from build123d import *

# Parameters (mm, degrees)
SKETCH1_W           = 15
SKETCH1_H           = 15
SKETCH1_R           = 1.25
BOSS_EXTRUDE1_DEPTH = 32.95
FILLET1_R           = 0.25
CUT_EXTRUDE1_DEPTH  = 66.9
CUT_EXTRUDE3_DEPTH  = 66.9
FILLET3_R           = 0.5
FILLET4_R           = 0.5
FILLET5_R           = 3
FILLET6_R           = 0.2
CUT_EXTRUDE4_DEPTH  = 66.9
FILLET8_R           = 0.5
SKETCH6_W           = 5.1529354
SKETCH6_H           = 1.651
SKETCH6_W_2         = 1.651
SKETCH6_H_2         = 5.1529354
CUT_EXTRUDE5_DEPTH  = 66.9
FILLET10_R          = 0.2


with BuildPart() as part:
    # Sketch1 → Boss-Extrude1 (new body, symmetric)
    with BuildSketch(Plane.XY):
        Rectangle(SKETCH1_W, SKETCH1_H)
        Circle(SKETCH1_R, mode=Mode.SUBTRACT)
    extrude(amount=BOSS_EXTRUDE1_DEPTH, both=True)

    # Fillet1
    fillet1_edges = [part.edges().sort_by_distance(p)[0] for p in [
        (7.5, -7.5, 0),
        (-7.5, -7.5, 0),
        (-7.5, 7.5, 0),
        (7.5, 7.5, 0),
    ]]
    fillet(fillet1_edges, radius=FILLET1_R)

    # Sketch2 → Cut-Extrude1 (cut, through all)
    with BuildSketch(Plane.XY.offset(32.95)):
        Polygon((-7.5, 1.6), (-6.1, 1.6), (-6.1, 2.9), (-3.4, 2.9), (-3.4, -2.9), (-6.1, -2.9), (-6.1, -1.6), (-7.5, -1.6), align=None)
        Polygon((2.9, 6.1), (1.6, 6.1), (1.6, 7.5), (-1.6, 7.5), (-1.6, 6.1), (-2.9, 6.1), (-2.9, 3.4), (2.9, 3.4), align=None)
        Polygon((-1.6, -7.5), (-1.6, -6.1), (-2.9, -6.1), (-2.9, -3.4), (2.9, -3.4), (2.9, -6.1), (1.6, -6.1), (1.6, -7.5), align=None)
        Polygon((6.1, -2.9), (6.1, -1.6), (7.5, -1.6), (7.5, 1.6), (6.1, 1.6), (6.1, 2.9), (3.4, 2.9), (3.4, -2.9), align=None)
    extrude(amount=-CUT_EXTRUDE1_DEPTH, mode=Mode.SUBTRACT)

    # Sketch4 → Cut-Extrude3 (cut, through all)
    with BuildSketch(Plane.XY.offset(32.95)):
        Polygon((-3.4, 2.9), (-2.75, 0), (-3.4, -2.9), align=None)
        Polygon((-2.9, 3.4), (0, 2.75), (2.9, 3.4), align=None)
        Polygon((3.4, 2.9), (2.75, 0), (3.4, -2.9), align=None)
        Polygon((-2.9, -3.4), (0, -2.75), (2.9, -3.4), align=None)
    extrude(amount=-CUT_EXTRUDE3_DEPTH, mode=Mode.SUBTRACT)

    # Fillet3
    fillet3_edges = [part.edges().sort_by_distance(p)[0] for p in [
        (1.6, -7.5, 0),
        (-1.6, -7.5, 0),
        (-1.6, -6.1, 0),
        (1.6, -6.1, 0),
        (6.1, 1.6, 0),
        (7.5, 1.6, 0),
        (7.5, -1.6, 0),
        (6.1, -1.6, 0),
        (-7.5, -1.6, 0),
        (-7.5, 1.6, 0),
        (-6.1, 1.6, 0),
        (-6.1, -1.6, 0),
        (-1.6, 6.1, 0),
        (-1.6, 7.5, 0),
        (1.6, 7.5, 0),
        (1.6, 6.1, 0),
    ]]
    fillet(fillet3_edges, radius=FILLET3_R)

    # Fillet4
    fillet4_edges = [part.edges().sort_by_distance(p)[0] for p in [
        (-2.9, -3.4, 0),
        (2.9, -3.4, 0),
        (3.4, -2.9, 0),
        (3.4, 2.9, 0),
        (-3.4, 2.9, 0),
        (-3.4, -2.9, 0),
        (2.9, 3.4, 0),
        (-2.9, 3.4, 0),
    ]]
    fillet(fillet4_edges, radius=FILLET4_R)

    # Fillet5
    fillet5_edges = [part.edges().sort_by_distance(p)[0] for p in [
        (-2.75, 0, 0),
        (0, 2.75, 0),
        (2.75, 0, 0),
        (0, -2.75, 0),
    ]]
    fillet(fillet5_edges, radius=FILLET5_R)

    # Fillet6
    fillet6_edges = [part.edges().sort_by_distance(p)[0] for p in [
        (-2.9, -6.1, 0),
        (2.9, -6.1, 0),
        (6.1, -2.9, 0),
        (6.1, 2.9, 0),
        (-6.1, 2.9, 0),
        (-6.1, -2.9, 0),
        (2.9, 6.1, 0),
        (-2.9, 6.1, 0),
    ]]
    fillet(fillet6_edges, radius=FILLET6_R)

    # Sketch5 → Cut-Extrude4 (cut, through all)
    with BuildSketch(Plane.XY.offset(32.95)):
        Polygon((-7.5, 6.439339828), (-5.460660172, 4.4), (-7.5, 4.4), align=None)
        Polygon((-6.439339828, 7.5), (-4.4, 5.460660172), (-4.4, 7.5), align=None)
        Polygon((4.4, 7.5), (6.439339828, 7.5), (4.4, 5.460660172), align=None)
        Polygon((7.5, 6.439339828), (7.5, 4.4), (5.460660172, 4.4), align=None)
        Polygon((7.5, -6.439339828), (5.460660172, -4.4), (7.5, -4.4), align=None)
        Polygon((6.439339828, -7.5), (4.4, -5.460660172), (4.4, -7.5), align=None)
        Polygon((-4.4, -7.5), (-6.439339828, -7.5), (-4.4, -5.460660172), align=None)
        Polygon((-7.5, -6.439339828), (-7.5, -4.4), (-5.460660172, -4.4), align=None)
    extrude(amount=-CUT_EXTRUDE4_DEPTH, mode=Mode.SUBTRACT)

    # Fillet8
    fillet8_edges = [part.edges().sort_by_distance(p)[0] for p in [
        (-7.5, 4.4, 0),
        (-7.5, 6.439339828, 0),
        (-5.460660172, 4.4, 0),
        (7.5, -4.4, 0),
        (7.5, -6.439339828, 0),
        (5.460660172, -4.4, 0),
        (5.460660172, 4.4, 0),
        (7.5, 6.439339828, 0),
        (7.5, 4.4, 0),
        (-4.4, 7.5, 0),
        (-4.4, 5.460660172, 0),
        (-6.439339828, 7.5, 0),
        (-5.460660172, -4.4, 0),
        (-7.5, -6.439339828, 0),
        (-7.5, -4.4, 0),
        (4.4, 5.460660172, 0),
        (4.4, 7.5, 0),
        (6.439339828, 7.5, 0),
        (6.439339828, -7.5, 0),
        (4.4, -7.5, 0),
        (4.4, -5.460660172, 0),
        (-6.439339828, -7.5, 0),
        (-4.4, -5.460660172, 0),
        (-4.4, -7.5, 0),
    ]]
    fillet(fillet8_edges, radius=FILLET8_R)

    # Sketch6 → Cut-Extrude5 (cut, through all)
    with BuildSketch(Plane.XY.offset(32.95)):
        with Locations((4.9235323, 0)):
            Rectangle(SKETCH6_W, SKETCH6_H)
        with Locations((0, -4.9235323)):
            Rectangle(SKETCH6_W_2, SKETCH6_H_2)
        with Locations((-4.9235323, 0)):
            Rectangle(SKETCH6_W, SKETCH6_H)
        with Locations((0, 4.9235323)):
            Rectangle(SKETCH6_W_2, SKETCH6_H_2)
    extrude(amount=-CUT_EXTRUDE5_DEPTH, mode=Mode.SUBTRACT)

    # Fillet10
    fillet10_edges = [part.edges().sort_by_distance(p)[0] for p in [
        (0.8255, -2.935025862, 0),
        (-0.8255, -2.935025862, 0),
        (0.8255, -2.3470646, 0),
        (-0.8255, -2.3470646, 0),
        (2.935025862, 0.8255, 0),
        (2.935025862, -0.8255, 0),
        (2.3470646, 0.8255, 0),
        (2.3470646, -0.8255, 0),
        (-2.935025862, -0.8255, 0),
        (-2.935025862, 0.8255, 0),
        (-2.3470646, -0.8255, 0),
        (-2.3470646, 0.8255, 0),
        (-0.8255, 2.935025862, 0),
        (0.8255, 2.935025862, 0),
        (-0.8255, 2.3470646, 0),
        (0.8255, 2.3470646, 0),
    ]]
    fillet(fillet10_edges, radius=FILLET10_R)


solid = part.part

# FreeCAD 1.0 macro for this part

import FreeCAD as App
import Part
import Sketcher


def edges_at(feature, points):
    """Names of the edges that pass closest to the given points."""
    edges = feature.Shape.Edges
    near = lambda p: min(range(len(edges)), key=lambda i: edges[i].distToShape(Part.Vertex(*p))[0])
    return sorted({f"Edge{near(p) + 1}" for p in points})


def add_polygon(sketch, points):
    """Adds a closed chain of lines whose ends are joined by coincident constraints."""
    first, n = sketch.GeometryCount, len(points)
    for a, b in zip(points, points[1:] + points[:1]):
        sketch.addGeometry(Part.LineSegment(App.Vector(*a, 0), App.Vector(*b, 0)), False)
    for i in range(n):
        sketch.addConstraint(Sketcher.Constraint("Coincident", first + i, 2, first + (i + 1) % n, 1))

doc = App.newDocument("Part")
body = doc.addObject("PartDesign::Body", "Body")

# Sketch on XY plane
sketch1 = body.newObject("Sketcher::SketchObject", "Sketch")
sketch1.AttachmentSupport = (doc.getObject("XY_Plane"), [""])
sketch1.MapMode = "FlatFace"
add_polygon(sketch1, [(-7.5, 7.5), (-7.5, -7.5), (7.5, -7.5), (7.5, 7.5)])  # lines 0-3
sketch1.addGeometry(Part.Circle(App.Vector(0, 0, 0), App.Vector(0, 0, 1), 1.2), False)  # 4
sketch1.addConstraint(Sketcher.Constraint("Vertical", 0))
sketch1.addConstraint(Sketcher.Constraint("Horizontal", 1))
sketch1.addConstraint(Sketcher.Constraint("Vertical", 2))
sketch1.addConstraint(Sketcher.Constraint("Horizontal", 3))
sketch1.addConstraint(Sketcher.Constraint("Coincident", 4, 3, -1, 1))
sketch1.addConstraint(Sketcher.Constraint("Symmetric", 0, 2, 2, 2, -1, 1))
sketch1.addConstraint(Sketcher.Constraint("Equal", 3, 0))
sketch1.addConstraint(Sketcher.Constraint("Diameter", 4, 2.5))
sketch1.addConstraint(Sketcher.Constraint("DistanceX", 1, 1, 1, 2, 15.0))
pad1 = body.newObject("PartDesign::Pad", "Pad")
pad1.Profile = sketch1
pad1.Length = 65.9
pad1.Midplane = True
doc.recompute()

fillet = body.newObject("PartDesign::Fillet", "Fillet")
fillet.Base = (pad1, edges_at(pad1, [
    (7.5, -7.5, 0),
    (-7.5, -7.5, 0),
    (-7.5, 7.5, 0),
    (7.5, 7.5, 0),
]))
fillet.Radius = 0.25

# Sketch on XY plane
sketch2 = body.newObject("Sketcher::SketchObject", "Sketch001")
sketch2.AttachmentSupport = (doc.getObject("XY_Plane"), [""])
sketch2.MapMode = "FlatFace"
sketch2.AttachmentOffset = App.Placement(App.Vector(0, 0, 32.95), App.Rotation())
add_polygon(sketch2, [(-6.1, 1.6), (-7.5, 1.6), (-7.5, -1.6), (-6.1, -1.6), (-6.1, -2.9), (-3.4, -2.9), (-3.4, 2.9), (-6.1, 2.9)])  # lines 0-7
add_polygon(sketch2, [(2.9, 6.1), (1.6, 6.1), (1.6, 7.5), (-1.6, 7.5), (-1.6, 6.1), (-2.9, 6.1), (-2.9, 3.4), (2.9, 3.4)])  # lines 8-15
add_polygon(sketch2, [(-1.6, -6.1), (-1.6, -7.5), (1.6, -7.5), (1.6, -6.1), (2.9, -6.1), (2.9, -3.4), (-2.9, -3.4), (-2.9, -6.1)])  # lines 16-23
add_polygon(sketch2, [(6.1, -2.9), (6.1, -1.6), (7.5, -1.6), (7.5, 1.6), (6.1, 1.6), (6.1, 2.9), (3.4, 2.9), (3.4, -2.9)])  # lines 24-31
sketch2.addConstraint(Sketcher.Constraint("Horizontal", 0))
sketch2.addConstraint(Sketcher.Constraint("Vertical", 1))
sketch2.addConstraint(Sketcher.Constraint("Horizontal", 2))
sketch2.addConstraint(Sketcher.Constraint("Vertical", 3))
sketch2.addConstraint(Sketcher.Constraint("Horizontal", 4))
sketch2.addConstraint(Sketcher.Constraint("Vertical", 5))
sketch2.addConstraint(Sketcher.Constraint("Horizontal", 6))
sketch2.addConstraint(Sketcher.Constraint("Vertical", 7))
sketch2.addConstraint(Sketcher.Constraint("Horizontal", 8))
sketch2.addConstraint(Sketcher.Constraint("Vertical", 9))
sketch2.addConstraint(Sketcher.Constraint("Horizontal", 10))
sketch2.addConstraint(Sketcher.Constraint("Vertical", 11))
sketch2.addConstraint(Sketcher.Constraint("Horizontal", 12))
sketch2.addConstraint(Sketcher.Constraint("Vertical", 13))
sketch2.addConstraint(Sketcher.Constraint("Horizontal", 14))
sketch2.addConstraint(Sketcher.Constraint("Vertical", 15))
sketch2.addConstraint(Sketcher.Constraint("Vertical", 16))
sketch2.addConstraint(Sketcher.Constraint("Horizontal", 17))
sketch2.addConstraint(Sketcher.Constraint("Vertical", 18))
sketch2.addConstraint(Sketcher.Constraint("Horizontal", 19))
sketch2.addConstraint(Sketcher.Constraint("Vertical", 20))
sketch2.addConstraint(Sketcher.Constraint("Horizontal", 21))
sketch2.addConstraint(Sketcher.Constraint("Vertical", 22))
sketch2.addConstraint(Sketcher.Constraint("Horizontal", 23))
sketch2.addConstraint(Sketcher.Constraint("Vertical", 24))
sketch2.addConstraint(Sketcher.Constraint("Horizontal", 25))
sketch2.addConstraint(Sketcher.Constraint("Vertical", 26))
sketch2.addConstraint(Sketcher.Constraint("Horizontal", 27))
sketch2.addConstraint(Sketcher.Constraint("Vertical", 28))
sketch2.addConstraint(Sketcher.Constraint("Horizontal", 29))
sketch2.addConstraint(Sketcher.Constraint("Vertical", 30))
sketch2.addConstraint(Sketcher.Constraint("Horizontal", 31))
sketch2.addConstraint(Sketcher.Constraint("Symmetric", 9, 2, 16, 2, -1, 1))
sketch2.addConstraint(Sketcher.Constraint("Symmetric", 11, 2, 18, 2, -1, 1))
sketch2.addConstraint(Sketcher.Constraint("Symmetric", 13, 2, 20, 2, -1, 1))
sketch2.addConstraint(Sketcher.Constraint("Symmetric", 15, 2, 22, 2, -1, 1))
sketch2.addConstraint(Sketcher.Constraint("Symmetric", 7, 2, 24, 2, -1, 1))
sketch2.addConstraint(Sketcher.Constraint("Symmetric", 1, 2, 26, 2, -1, 1))
sketch2.addConstraint(Sketcher.Constraint("Symmetric", 3, 2, 28, 2, -1, 1))
sketch2.addConstraint(Sketcher.Constraint("Symmetric", 5, 2, 30, 2, -1, 1))
sketch2.addConstraint(Sketcher.Constraint("Symmetric", 8, 2, 11, 2, -2))
sketch2.addConstraint(Sketcher.Constraint("Symmetric", 2, 2, 24, 2, -2))
sketch2.addConstraint(Sketcher.Constraint("Horizontal", 6, 2, 28, 2))
sketch2.addConstraint(Sketcher.Constraint("Vertical", 15, 2, 19, 2))
sketch2.addConstraint(Sketcher.Constraint("Equal", 17, 1))
sketch2.addConstraint(Sketcher.Constraint("Equal", 23, 3))
sketch2.addConstraint(Sketcher.Constraint("Equal", 27, 9))
sketch2.addConstraint(Sketcher.Constraint("Equal", 31, 13))
sketch2.addConstraint(Sketcher.Constraint("DistanceX", 0, 2, 0, 1, 1.4))
sketch2.addConstraint(Sketcher.Constraint("DistanceX", 4, 1, 4, 2, 2.7))
sketch2.addConstraint(Sketcher.Constraint("DistanceX", 8, 2, 8, 1, 1.3))
sketch2.addConstraint(Sketcher.Constraint("DistanceX", 10, 2, 10, 1, 3.2))
sketch2.addConstraint(Sketcher.Constraint("DistanceX", 5, 2, 8, 2, 5.0))
sketch2.addConstraint(Sketcher.Constraint("DistanceY", 4, 2, 8, 2, 9.0))
pocket1 = body.newObject("PartDesign::Pocket", "Pocket")
pocket1.Profile = sketch2
pocket1.Type = "ThroughAll"

# Sketch on XY plane
sketch3 = body.newObject("Sketcher::SketchObject", "Sketch002")
sketch3.AttachmentSupport = (doc.getObject("XY_Plane"), [""])
sketch3.MapMode = "FlatFace"
sketch3.AttachmentOffset = App.Placement(App.Vector(0, 0, 32.95), App.Rotation())
add_polygon(sketch3, [(-2.8, 0), (-3.4, 2.9), (-3.4, -2.9)])  # lines 0-2
add_polygon(sketch3, [(-2.9, 3.4), (0, 2.8), (2.9, 3.4)])  # lines 3-5
add_polygon(sketch3, [(3.4, 2.9), (2.8, 0), (3.4, -2.9)])  # lines 6-8
add_polygon(sketch3, [(0, -2.8), (-2.9, -3.4), (2.9, -3.4)])  # lines 9-11
sketch3.addConstraint(Sketcher.Constraint("Vertical", 1))
sketch3.addConstraint(Sketcher.Constraint("Horizontal", 5))
sketch3.addConstraint(Sketcher.Constraint("Vertical", 8))
sketch3.addConstraint(Sketcher.Constraint("Horizontal", 10))
sketch3.addConstraint(Sketcher.Constraint("Symmetric", 2, 2, 6, 2, -1, 1))
sketch3.addConstraint(Sketcher.Constraint("Symmetric", 0, 2, 7, 2, -1, 1))
sketch3.addConstraint(Sketcher.Constraint("Symmetric", 4, 2, 9, 2, -1, 1))
sketch3.addConstraint(Sketcher.Constraint("Symmetric", 3, 2, 11, 2, -1, 1))
sketch3.addConstraint(Sketcher.Constraint("PointOnObject", 2, 2, -1))
sketch3.addConstraint(Sketcher.Constraint("PointOnObject", 3, 2, -2))
sketch3.addConstraint(Sketcher.Constraint("Perpendicular", 2, 3))
sketch3.addConstraint(Sketcher.Constraint("Perpendicular", 0, 4))
sketch3.addConstraint(Sketcher.Constraint("Perpendicular", 3, 6))
sketch3.addConstraint(Sketcher.Constraint("Perpendicular", 6, 11))
sketch3.addConstraint(Sketcher.Constraint("Horizontal", 1, 2, 7, 2))
sketch3.addConstraint(Sketcher.Constraint("Equal", 10, 1))
sketch3.addConstraint(Sketcher.Constraint("DistanceX", 5, 2, 5, 1, 5.8))
sketch3.addConstraint(Sketcher.Constraint("DistanceX", 0, 2, -1, 1, 3.4))
sketch3.addConstraint(Sketcher.Constraint("DistanceY", -1, 1, 4, 2, 3.4))
sketch3.addConstraint(Sketcher.Constraint("DistanceX", 2, 2, 6, 2, 5.5))
pocket2 = body.newObject("PartDesign::Pocket", "Pocket001")
pocket2.Profile = sketch3
pocket2.Type = "ThroughAll"
doc.recompute()

fillet2 = body.newObject("PartDesign::Fillet", "Fillet001")
fillet2.Base = (pocket2, edges_at(pocket2, [
    (1.6, -7.5, 0),
    (-1.6, -7.5, 0),
    (-1.6, -6.1, 0),
    (1.6, -6.1, 0),
    (6.1, 1.6, 0),
    (7.5, 1.6, 0),
    (7.5, -1.6, 0),
    (6.1, -1.6, 0),
    (-7.5, -1.6, 0),
    (-7.5, 1.6, 0),
    (-6.1, 1.6, 0),
    (-6.1, -1.6, 0),
    (-1.6, 6.1, 0),
    (-1.6, 7.5, 0),
    (1.6, 7.5, 0),
    (1.6, 6.1, 0),
]))
fillet2.Radius = 0.5
doc.recompute()

fillet3 = body.newObject("PartDesign::Fillet", "Fillet002")
fillet3.Base = (fillet2, edges_at(fillet2, [
    (-2.9, -3.4, 0),
    (2.9, -3.4, 0),
    (3.4, -2.9, 0),
    (3.4, 2.9, 0),
    (-3.4, 2.9, 0),
    (-3.4, -2.9, 0),
    (2.9, 3.4, 0),
    (-2.9, 3.4, 0),
]))
fillet3.Radius = 0.5
doc.recompute()

fillet4 = body.newObject("PartDesign::Fillet", "Fillet003")
fillet4.Base = (fillet3, edges_at(fillet3, [
    (-2.75, 0, 0),
    (0, 2.75, 0),
    (2.75, 0, 0),
    (0, -2.75, 0),
]))
fillet4.Radius = 3
doc.recompute()

fillet5 = body.newObject("PartDesign::Fillet", "Fillet004")
fillet5.Base = (fillet4, edges_at(fillet4, [
    (-2.9, -6.1, 0),
    (2.9, -6.1, 0),
    (6.1, -2.9, 0),
    (6.1, 2.9, 0),
    (-6.1, 2.9, 0),
    (-6.1, -2.9, 0),
    (2.9, 6.1, 0),
    (-2.9, 6.1, 0),
]))
fillet5.Radius = 0.2

# Sketch on XY plane
sketch4 = body.newObject("Sketcher::SketchObject", "Sketch003")
sketch4.AttachmentSupport = (doc.getObject("XY_Plane"), [""])
sketch4.MapMode = "FlatFace"
sketch4.AttachmentOffset = App.Placement(App.Vector(0, 0, 32.95), App.Rotation())
add_polygon(sketch4, [(-5.5, 4.4), (-7.5, 6.4), (-7.5, 4.4)])  # lines 0-2
add_polygon(sketch4, [(-6.4, 7.5), (-4.4, 5.5), (-4.4, 7.5)])  # lines 3-5
add_polygon(sketch4, [(6.4, 7.5), (4.4, 7.5), (4.4, 5.5)])  # lines 6-8
add_polygon(sketch4, [(7.5, 4.4), (7.5, 6.4), (5.5, 4.4)])  # lines 9-11
add_polygon(sketch4, [(5.5, -4.4), (7.5, -6.4), (7.5, -4.4)])  # lines 12-14
add_polygon(sketch4, [(6.4, -7.5), (4.4, -5.5), (4.4, -7.5)])  # lines 15-17
add_polygon(sketch4, [(-6.4, -7.5), (-4.4, -7.5), (-4.4, -5.5)])  # lines 18-20
add_polygon(sketch4, [(-7.5, -4.4), (-7.5, -6.4), (-5.5, -4.4)])  # lines 21-23
sketch4.addConstraint(Sketcher.Constraint("Vertical", 1))
sketch4.addConstraint(Sketcher.Constraint("Horizontal", 2))
sketch4.addConstraint(Sketcher.Constraint("Vertical", 4))
sketch4.addConstraint(Sketcher.Constraint("Horizontal", 5))
sketch4.addConstraint(Sketcher.Constraint("Horizontal", 6))
sketch4.addConstraint(Sketcher.Constraint("Vertical", 7))
sketch4.addConstraint(Sketcher.Constraint("Vertical", 9))
sketch4.addConstraint(Sketcher.Constraint("Horizontal", 11))
sketch4.addConstraint(Sketcher.Constraint("Vertical", 13))
sketch4.addConstraint(Sketcher.Constraint("Horizontal", 14))
sketch4.addConstraint(Sketcher.Constraint("Vertical", 16))
sketch4.addConstraint(Sketcher.Constraint("Horizontal", 17))
sketch4.addConstraint(Sketcher.Constraint("Horizontal", 18))
sketch4.addConstraint(Sketcher.Constraint("Vertical", 19))
sketch4.addConstraint(Sketcher.Constraint("Vertical", 21))
sketch4.addConstraint(Sketcher.Constraint("Horizontal", 23))
sketch4.addConstraint(Sketcher.Constraint("Symmetric", 0, 2, 12, 2, -1, 1))
sketch4.addConstraint(Sketcher.Constraint("Symmetric", 2, 2, 14, 2, -1, 1))
sketch4.addConstraint(Sketcher.Constraint("Symmetric", 3, 2, 15, 2, -1, 1))
sketch4.addConstraint(Sketcher.Constraint("Symmetric", 5, 2, 17, 2, -1, 1))
sketch4.addConstraint(Sketcher.Constraint("Symmetric", 6, 2, 18, 2, -1, 1))
sketch4.addConstraint(Sketcher.Constraint("Symmetric", 9, 2, 21, 2, -1, 1))
sketch4.addConstraint(Sketcher.Constraint("Symmetric", 10, 2, 22, 2, -1, 1))
sketch4.addConstraint(Sketcher.Constraint("Symmetric", 4, 2, 6, 2, -2))
sketch4.addConstraint(Sketcher.Constraint("Symmetric", 0, 2, 9, 2, -2))
sketch4.addConstraint(Sketcher.Constraint("Symmetric", 2, 2, 10, 2, -2))
sketch4.addConstraint(Sketcher.Constraint("Parallel", 0, 3))
sketch4.addConstraint(Sketcher.Constraint("Perpendicular", 3, 8))
sketch4.addConstraint(Sketcher.Constraint("Parallel", 8, 10))
sketch4.addConstraint(Sketcher.Constraint("Perpendicular", 15, 20))
sketch4.addConstraint(Sketcher.Constraint("Horizontal", 3, 2, 7, 2))
sketch4.addConstraint(Sketcher.Constraint("Horizontal", 15, 2, 19, 2))
sketch4.addConstraint(Sketcher.Constraint("Equal", 2, 5))
sketch4.addConstraint(Sketcher.Constraint("DistanceX", 0, 2, -1, 1, 7.5))
sketch4.addConstraint(Sketcher.Constraint("DistanceY", -1, 1, 1, 2, 4.4))
sketch4.addConstraint(Sketcher.Constraint("DistanceX", 3, 2, -1, 1, 4.4))
sketch4.addConstraint(Sketcher.Constraint("DistanceY", -1, 1, 4, 2, 7.5))
sketch4.addConstraint(Sketcher.Constraint("DistanceX", 2, 1, 2, 2, 2.03934))
pocket3 = body.newObject("PartDesign::Pocket", "Pocket002")
pocket3.Profile = sketch4
pocket3.Type = "ThroughAll"
doc.recompute()

fillet6 = body.newObject("PartDesign::Fillet", "Fillet005")
fillet6.Base = (pocket3, edges_at(pocket3, [
    (-7.5, 4.4, 0),
    (-7.5, 6.439, 0),
    (-5.461, 4.4, 0),
    (7.5, -4.4, 0),
    (7.5, -6.439, 0),
    (5.461, -4.4, 0),
    (5.461, 4.4, 0),
    (7.5, 6.439, 0),
    (7.5, 4.4, 0),
    (-4.4, 7.5, 0),
    (-4.4, 5.461, 0),
    (-6.439, 7.5, 0),
    (-5.461, -4.4, 0),
    (-7.5, -6.439, 0),
    (-7.5, -4.4, 0),
    (4.4, 5.461, 0),
    (4.4, 7.5, 0),
    (6.439, 7.5, 0),
    (6.439, -7.5, 0),
    (4.4, -7.5, 0),
    (4.4, -5.461, 0),
    (-6.439, -7.5, 0),
    (-4.4, -5.461, 0),
    (-4.4, -7.5, 0),
]))
fillet6.Radius = 0.5

# Sketch on XY plane
sketch5 = body.newObject("Sketcher::SketchObject", "Sketch004")
sketch5.AttachmentSupport = (doc.getObject("XY_Plane"), [""])
sketch5.MapMode = "FlatFace"
sketch5.AttachmentOffset = App.Placement(App.Vector(0, 0, 32.95), App.Rotation())
add_polygon(sketch5, [(2.3, 0.8), (2.3, -0.8), (7.5, -0.8), (7.5, 0.8)])  # lines 0-3
add_polygon(sketch5, [(-0.8, -2.3), (-0.8, -7.5), (0.8, -7.5), (0.8, -2.3)])  # lines 4-7
add_polygon(sketch5, [(-7.5, 0.8), (-7.5, -0.8), (-2.3, -0.8), (-2.3, 0.8)])  # lines 8-11
add_polygon(sketch5, [(-0.8, 7.5), (-0.8, 2.3), (0.8, 2.3), (0.8, 7.5)])  # lines 12-15
sketch5.addConstraint(Sketcher.Constraint("Vertical", 0))
sketch5.addConstraint(Sketcher.Constraint("Horizontal", 1))
sketch5.addConstraint(Sketcher.Constraint("Vertical", 2))
sketch5.addConstraint(Sketcher.Constraint("Horizontal", 3))
sketch5.addConstraint(Sketcher.Constraint("Vertical", 4))
sketch5.addConstraint(Sketcher.Constraint("Horizontal", 5))
sketch5.addConstraint(Sketcher.Constraint("Vertical", 6))
sketch5.addConstraint(Sketcher.Constraint("Horizontal", 7))
sketch5.addConstraint(Sketcher.Constraint("Vertical", 8))
sketch5.addConstraint(Sketcher.Constraint("Horizontal", 9))
sketch5.addConstraint(Sketcher.Constraint("Vertical", 10))
sketch5.addConstraint(Sketcher.Constraint("Horizontal", 11))
sketch5.addConstraint(Sketcher.Constraint("Vertical", 12))
sketch5.addConstraint(Sketcher.Constraint("Horizontal", 13))
sketch5.addConstraint(Sketcher.Constraint("Vertical", 14))
sketch5.addConstraint(Sketcher.Constraint("Horizontal", 15))
sketch5.addConstraint(Sketcher.Constraint("Symmetric", 2, 2, 8, 2, -1, 1))
sketch5.addConstraint(Sketcher.Constraint("Symmetric", 0, 2, 10, 2, -1, 1))
sketch5.addConstraint(Sketcher.Constraint("Symmetric", 6, 2, 12, 2, -1, 1))
sketch5.addConstraint(Sketcher.Constraint("Symmetric", 4, 2, 14, 2, -1, 1))
sketch5.addConstraint(Sketcher.Constraint("Horizontal", 1, 2, 8, 2))
sketch5.addConstraint(Sketcher.Constraint("Vertical", 7, 2, 12, 2))
sketch5.addConstraint(Sketcher.Constraint("Equal", 15, 0))
sketch5.addConstraint(Sketcher.Constraint("Equal", 11, 4))
sketch5.addConstraint(Sketcher.Constraint("DistanceX", -1, 1, 1, 2, 7.5))
sketch5.addConstraint(Sketcher.Constraint("DistanceY", 4, 2, -1, 1, 7.5))
sketch5.addConstraint(Sketcher.Constraint("DistanceX", 5, 1, 5, 2, 1.651))
sketch5.addConstraint(Sketcher.Constraint("DistanceX", 1, 1, 1, 2, 5.152935))
pocket4 = body.newObject("PartDesign::Pocket", "Pocket003")
pocket4.Profile = sketch5
pocket4.Type = "ThroughAll"
doc.recompute()

fillet7 = body.newObject("PartDesign::Fillet", "Fillet006")
fillet7.Base = (pocket4, edges_at(pocket4, [
    (0.826, -2.935, 0),
    (-0.826, -2.935, 0),
    (0.826, -2.347, 0),
    (-0.826, -2.347, 0),
    (2.935, 0.826, 0),
    (2.935, -0.826, 0),
    (2.347, 0.826, 0),
    (2.347, -0.826, 0),
    (-2.935, -0.826, 0),
    (-2.935, 0.826, 0),
    (-2.347, -0.826, 0),
    (-2.347, 0.826, 0),
    (-0.826, 2.935, 0),
    (0.826, 2.935, 0),
    (-0.826, 2.347, 0),
    (0.826, 2.347, 0),
]))
fillet7.Radius = 0.2

doc.recompute()
